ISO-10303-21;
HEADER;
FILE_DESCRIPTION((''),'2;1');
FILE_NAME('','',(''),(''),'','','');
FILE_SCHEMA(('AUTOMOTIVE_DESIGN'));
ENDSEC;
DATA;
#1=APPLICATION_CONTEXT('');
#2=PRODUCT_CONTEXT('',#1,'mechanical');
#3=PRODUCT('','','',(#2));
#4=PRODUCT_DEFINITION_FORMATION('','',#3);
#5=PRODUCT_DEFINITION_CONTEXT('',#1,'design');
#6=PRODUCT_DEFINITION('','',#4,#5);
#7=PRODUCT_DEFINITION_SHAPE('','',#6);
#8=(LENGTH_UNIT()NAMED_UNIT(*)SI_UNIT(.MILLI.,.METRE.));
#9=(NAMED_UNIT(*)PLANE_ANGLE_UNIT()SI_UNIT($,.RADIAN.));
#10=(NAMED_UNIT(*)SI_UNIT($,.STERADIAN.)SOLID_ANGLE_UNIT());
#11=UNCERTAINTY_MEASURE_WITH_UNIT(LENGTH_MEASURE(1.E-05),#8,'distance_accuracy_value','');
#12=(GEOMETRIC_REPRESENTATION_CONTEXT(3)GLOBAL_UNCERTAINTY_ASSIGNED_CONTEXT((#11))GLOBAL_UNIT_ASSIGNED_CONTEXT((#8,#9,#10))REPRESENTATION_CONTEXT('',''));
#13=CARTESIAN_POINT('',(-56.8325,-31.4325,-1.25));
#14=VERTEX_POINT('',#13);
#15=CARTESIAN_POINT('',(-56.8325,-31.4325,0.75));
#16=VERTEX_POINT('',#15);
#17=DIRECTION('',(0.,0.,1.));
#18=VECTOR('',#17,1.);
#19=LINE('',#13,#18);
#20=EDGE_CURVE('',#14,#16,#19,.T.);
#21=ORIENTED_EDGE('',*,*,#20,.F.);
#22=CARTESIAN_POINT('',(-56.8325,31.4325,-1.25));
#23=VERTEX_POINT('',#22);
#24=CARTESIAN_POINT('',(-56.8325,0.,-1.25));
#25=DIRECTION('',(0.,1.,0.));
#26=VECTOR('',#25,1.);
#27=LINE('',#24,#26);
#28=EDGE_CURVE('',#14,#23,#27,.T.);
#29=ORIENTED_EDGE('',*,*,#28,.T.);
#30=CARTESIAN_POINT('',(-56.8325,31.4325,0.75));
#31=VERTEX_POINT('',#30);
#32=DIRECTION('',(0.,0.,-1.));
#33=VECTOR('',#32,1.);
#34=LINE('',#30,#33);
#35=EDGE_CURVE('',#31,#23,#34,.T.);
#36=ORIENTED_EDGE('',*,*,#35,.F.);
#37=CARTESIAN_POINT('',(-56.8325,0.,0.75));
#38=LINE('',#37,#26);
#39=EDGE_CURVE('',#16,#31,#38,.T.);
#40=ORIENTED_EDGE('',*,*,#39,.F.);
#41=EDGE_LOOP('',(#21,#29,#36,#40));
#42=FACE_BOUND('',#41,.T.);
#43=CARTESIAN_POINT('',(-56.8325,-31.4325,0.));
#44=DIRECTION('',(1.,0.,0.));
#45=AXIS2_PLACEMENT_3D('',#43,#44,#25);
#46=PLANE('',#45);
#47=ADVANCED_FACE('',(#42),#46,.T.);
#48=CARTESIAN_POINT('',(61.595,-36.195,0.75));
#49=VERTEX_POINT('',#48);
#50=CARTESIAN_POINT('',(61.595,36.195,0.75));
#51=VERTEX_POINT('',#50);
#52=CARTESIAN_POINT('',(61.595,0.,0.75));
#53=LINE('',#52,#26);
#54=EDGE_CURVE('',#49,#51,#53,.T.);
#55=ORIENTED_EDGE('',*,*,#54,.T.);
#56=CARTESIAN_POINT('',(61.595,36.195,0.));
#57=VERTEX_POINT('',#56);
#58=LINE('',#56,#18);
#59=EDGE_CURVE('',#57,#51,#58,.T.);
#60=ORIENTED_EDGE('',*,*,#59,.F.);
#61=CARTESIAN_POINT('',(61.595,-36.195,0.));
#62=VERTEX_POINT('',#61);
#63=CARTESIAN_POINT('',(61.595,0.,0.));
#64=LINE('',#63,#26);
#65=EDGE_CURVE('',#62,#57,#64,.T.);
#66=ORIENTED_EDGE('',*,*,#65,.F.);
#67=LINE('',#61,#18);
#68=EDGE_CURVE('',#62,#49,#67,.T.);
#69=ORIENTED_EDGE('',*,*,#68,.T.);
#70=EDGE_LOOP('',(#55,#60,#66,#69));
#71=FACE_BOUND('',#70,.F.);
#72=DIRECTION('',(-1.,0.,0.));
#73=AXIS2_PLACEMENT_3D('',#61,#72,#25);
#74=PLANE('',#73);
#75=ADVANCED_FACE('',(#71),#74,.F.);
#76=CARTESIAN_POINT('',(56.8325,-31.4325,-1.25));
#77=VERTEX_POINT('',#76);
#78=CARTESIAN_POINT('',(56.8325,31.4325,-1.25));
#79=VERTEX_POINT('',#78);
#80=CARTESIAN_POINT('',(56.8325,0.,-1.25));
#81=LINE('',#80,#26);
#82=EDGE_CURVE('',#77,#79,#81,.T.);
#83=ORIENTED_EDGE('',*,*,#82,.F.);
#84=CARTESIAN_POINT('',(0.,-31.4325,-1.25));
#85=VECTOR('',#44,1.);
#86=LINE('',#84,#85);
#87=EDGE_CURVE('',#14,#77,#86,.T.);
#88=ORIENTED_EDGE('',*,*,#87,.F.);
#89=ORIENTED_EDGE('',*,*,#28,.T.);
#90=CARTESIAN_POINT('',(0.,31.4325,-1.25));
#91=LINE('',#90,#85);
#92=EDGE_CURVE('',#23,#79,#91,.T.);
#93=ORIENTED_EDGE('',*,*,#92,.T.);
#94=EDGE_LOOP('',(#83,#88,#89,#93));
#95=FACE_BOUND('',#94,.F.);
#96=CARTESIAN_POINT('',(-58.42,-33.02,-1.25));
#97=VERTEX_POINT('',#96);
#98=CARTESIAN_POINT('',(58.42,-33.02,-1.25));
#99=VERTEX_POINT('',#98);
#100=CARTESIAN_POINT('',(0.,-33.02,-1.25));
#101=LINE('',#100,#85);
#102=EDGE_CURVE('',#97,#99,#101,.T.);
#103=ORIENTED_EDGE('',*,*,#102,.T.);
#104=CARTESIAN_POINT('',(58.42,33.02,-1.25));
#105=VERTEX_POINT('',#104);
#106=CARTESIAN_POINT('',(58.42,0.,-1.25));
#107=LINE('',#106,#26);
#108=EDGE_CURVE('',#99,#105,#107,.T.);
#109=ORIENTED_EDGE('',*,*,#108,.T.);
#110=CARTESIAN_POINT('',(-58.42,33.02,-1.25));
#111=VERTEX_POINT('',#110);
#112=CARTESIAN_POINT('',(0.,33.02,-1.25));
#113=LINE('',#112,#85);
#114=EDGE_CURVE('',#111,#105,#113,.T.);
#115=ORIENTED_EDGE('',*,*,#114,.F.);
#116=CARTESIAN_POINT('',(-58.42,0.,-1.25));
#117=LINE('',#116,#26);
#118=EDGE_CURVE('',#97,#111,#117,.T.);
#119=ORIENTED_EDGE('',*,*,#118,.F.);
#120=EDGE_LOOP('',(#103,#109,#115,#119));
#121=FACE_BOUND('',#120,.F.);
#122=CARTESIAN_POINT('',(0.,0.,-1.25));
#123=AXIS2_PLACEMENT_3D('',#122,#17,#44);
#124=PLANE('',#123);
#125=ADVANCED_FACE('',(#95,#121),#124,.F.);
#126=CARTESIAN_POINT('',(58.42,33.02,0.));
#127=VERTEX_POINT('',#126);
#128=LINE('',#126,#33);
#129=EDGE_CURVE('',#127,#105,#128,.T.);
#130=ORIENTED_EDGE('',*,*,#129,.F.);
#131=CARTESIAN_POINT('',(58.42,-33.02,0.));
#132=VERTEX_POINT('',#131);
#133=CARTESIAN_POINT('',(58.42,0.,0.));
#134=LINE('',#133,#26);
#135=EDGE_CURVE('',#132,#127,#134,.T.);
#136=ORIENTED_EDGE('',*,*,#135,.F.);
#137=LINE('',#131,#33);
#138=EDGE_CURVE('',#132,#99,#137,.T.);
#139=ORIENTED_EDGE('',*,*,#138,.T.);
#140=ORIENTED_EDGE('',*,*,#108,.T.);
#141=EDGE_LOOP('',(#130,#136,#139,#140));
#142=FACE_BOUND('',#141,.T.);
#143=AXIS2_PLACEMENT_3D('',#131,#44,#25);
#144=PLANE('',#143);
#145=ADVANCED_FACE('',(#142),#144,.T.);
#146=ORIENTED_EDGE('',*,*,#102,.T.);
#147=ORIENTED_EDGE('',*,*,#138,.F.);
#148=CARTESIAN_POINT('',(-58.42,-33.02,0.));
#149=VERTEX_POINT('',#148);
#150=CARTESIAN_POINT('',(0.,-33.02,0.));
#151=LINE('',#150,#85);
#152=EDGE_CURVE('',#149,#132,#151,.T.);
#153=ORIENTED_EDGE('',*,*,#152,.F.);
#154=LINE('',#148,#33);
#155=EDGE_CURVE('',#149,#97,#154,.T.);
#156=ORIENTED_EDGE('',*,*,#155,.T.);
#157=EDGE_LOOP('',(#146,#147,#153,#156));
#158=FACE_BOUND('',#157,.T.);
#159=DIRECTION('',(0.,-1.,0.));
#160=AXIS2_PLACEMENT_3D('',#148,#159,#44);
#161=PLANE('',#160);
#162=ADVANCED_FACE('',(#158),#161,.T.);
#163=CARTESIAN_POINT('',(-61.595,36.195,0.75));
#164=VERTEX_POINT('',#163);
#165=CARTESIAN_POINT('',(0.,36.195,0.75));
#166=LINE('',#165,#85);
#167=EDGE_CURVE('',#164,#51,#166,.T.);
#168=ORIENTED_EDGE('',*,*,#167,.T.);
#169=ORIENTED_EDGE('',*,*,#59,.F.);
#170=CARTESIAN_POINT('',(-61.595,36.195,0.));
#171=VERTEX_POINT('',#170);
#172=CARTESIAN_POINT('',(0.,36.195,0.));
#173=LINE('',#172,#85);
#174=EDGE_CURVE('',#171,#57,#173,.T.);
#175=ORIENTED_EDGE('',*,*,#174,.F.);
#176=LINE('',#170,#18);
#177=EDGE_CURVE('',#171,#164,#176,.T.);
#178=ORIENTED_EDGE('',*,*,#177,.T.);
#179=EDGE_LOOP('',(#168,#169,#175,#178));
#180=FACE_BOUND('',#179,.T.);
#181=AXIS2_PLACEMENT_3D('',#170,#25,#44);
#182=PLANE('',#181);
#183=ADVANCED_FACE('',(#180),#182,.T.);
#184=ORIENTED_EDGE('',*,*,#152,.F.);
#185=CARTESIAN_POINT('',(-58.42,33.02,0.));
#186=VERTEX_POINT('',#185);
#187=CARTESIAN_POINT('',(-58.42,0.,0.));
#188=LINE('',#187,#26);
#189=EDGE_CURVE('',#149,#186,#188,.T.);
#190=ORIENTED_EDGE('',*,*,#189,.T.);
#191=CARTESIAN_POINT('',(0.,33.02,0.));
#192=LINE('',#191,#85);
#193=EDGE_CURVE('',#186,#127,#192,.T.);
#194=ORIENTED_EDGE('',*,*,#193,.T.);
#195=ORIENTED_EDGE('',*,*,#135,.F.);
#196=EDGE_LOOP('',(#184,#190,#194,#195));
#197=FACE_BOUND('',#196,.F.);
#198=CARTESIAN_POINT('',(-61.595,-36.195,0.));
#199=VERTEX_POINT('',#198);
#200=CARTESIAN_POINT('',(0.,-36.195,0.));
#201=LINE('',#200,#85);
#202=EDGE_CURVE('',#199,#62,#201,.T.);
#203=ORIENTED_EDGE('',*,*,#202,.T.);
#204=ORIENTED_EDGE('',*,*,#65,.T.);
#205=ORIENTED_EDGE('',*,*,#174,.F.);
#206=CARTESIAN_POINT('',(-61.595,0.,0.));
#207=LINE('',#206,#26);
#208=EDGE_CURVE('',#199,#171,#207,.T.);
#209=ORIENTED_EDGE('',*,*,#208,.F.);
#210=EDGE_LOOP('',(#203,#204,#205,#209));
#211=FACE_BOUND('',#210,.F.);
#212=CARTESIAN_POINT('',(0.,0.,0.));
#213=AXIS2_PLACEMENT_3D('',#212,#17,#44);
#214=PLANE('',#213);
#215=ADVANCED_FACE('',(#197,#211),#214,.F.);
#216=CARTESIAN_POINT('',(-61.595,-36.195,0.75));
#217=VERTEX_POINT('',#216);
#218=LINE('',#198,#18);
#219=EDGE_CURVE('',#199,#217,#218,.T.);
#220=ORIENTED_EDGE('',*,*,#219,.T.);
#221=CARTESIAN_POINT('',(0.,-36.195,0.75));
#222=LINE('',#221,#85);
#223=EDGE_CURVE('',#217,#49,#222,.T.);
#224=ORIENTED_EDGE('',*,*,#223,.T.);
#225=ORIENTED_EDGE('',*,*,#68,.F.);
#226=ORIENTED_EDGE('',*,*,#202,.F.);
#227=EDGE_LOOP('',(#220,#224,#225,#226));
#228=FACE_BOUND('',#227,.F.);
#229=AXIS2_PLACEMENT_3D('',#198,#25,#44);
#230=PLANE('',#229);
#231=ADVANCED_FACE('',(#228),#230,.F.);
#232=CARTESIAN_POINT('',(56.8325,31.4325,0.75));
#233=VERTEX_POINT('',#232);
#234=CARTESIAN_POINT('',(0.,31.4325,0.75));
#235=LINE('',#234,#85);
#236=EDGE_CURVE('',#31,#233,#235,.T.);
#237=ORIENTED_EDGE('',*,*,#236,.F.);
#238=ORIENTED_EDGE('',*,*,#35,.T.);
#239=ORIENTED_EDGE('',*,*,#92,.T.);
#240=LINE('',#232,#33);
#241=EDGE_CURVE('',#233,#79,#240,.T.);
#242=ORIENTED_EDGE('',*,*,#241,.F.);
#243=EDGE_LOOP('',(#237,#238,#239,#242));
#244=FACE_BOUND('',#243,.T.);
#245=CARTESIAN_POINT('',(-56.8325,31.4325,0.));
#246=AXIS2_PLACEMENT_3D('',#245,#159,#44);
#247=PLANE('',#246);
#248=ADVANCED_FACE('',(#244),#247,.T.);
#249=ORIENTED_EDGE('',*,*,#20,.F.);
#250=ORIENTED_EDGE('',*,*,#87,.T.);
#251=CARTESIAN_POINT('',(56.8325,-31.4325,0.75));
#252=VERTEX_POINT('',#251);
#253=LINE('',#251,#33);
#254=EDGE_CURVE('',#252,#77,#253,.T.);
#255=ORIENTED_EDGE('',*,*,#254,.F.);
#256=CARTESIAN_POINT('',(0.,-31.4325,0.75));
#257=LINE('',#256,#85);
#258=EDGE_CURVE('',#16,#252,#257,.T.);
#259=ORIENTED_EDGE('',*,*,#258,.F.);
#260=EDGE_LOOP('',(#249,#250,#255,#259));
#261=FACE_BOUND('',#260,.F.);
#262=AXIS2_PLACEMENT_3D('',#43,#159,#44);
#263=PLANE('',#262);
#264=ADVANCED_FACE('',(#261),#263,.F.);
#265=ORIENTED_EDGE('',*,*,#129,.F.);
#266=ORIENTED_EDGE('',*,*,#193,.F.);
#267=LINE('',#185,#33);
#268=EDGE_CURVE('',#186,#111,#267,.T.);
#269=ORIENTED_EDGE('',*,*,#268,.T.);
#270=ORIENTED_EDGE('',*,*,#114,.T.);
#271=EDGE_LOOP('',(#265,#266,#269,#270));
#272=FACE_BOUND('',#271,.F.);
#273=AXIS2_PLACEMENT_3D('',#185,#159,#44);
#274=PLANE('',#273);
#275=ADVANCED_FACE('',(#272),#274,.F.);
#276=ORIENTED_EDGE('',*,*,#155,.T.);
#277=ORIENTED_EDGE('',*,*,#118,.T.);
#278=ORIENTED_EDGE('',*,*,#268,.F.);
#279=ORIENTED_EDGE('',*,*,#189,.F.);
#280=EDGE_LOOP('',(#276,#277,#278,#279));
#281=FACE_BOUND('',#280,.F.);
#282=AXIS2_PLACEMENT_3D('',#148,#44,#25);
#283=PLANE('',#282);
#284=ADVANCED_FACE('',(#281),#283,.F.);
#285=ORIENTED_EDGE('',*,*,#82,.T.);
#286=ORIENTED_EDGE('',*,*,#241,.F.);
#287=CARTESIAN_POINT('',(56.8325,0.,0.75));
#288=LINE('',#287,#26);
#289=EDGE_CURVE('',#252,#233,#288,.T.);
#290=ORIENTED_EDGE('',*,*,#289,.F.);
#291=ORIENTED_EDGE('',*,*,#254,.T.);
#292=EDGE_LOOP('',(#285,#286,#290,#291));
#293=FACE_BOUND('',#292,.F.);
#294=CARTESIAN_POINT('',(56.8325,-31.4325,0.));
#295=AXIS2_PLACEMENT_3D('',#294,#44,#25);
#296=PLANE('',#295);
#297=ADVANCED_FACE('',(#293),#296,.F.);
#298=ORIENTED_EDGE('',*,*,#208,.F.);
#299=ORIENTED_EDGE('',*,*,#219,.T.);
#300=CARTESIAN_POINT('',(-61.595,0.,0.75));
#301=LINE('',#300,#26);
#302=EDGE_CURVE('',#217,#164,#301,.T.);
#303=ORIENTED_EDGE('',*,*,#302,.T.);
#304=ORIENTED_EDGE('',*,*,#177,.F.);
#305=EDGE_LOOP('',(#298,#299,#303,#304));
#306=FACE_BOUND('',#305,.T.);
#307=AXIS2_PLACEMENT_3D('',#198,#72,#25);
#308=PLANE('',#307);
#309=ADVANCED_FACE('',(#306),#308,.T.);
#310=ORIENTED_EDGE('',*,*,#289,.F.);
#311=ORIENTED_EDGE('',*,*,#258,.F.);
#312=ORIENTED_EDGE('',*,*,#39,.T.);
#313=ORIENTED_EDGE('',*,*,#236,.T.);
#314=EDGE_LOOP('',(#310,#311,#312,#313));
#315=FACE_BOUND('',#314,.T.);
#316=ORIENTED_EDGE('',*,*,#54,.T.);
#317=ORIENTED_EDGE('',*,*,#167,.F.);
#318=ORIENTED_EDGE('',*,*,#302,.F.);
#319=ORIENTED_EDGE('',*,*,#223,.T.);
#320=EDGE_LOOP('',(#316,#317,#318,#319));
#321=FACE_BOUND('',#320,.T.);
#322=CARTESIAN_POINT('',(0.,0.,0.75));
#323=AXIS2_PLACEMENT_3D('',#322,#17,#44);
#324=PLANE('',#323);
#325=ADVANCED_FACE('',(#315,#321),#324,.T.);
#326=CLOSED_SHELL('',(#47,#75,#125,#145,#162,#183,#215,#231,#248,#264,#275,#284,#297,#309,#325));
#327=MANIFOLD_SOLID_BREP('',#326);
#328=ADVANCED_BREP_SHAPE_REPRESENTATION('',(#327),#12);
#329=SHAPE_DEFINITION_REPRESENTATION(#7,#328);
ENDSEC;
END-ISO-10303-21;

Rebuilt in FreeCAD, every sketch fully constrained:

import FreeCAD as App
import Part
import Sketcher
from FreeCAD import Vector
Q = App.Units.Quantity


def add_polygon(sketch, points):
    """Adds a closed chain of lines whose ends are joined by coincident constraints."""
    first, n = sketch.GeometryCount, len(points)
    for a, b in zip(points, points[1:] + points[:1]):
        sketch.addGeometry(Part.LineSegment(App.Vector(*a, 0), App.Vector(*b, 0)), False)
    for i in range(n):
        sketch.addConstraint(Sketcher.Constraint("Coincident", first + i, 2, first + (i + 1) % n, 1))

doc = App.newDocument("Part")
body = doc.addObject("PartDesign::Body", "Body")

# Sketch on XY plane
sketch1 = body.newObject("Sketcher::SketchObject", "Sketch")
sketch1.AttachmentSupport = (doc.getObject("XY_Plane"), [""])
sketch1.MapMode = "FlatFace"
add_polygon(sketch1, [(-62, 36), (-62, -36), (62, -36), (62, 36)])  # lines 0-3
add_polygon(sketch1, [(57, -31), (-57, -31), (-57, 31), (57, 31)])  # lines 4-7
sketch1.addConstraint([
    Sketcher.Constraint("Vertical", 0),
    Sketcher.Constraint("Horizontal", 1),
    Sketcher.Constraint("Vertical", 2),
    Sketcher.Constraint("Horizontal", 3),
    Sketcher.Constraint("Horizontal", 4),
    Sketcher.Constraint("Vertical", 5),
    Sketcher.Constraint("Horizontal", 6),
    Sketcher.Constraint("Vertical", 7),
    Sketcher.Constraint("Symmetric", 0, 2, 2, 2, -1, 1),
    Sketcher.Constraint("Symmetric", 4, 2, 6, 2, -1, 1),
    Sketcher.Constraint("DistanceX", 1, 1, 1, 2, Q("4.85 in")),
    Sketcher.Constraint("DistanceY", 0, 2, 0, 1, Q("2.85 in")),
    Sketcher.Constraint("DistanceX", 4, 2, 4, 1, Q("4.475 in")),
    Sketcher.Constraint("DistanceY", 5, 1, 5, 2, Q("2.475 in")),
])
pad1 = body.newObject("PartDesign::Pad", "Pad")
pad1.Profile = sketch1
pad1.Length = 0.75

# Sketch on XY plane
sketch2 = body.newObject("Sketcher::SketchObject", "Sketch001")
sketch2.AttachmentSupport = (doc.getObject("XY_Plane"), [""])
sketch2.MapMode = "FlatFace"
add_polygon(sketch2, [(-58, 33), (-58, -33), (58, -33), (58, 33)])  # lines 0-3
add_polygon(sketch2, [(57, -31), (-57, -31), (-57, 31), (57, 31)])  # lines 4-7
sketch2.addConstraint([
    Sketcher.Constraint("Vertical", 0),
    Sketcher.Constraint("Horizontal", 1),
    Sketcher.Constraint("Vertical", 2),
    Sketcher.Constraint("Horizontal", 3),
    Sketcher.Constraint("Horizontal", 4),
    Sketcher.Constraint("Vertical", 5),
    Sketcher.Constraint("Horizontal", 6),
    Sketcher.Constraint("Vertical", 7),
    Sketcher.Constraint("Symmetric", 0, 2, 2, 2, -1, 1),
    Sketcher.Constraint("Symmetric", 4, 2, 6, 2, -1, 1),
    Sketcher.Constraint("DistanceX", 1, 1, 1, 2, Q("4.6 in")),
    Sketcher.Constraint("DistanceY", 0, 2, 0, 1, Q("2.6 in")),
    Sketcher.Constraint("DistanceX", 4, 2, 4, 1, Q("4.475 in")),
    Sketcher.Constraint("DistanceY", 5, 1, 5, 2, Q("2.475 in")),
])
pad2 = body.newObject("PartDesign::Pad", "Pad001")
pad2.Profile = sketch2
pad2.Length = 1.25
pad2.Reversed = True

doc.recompute()
